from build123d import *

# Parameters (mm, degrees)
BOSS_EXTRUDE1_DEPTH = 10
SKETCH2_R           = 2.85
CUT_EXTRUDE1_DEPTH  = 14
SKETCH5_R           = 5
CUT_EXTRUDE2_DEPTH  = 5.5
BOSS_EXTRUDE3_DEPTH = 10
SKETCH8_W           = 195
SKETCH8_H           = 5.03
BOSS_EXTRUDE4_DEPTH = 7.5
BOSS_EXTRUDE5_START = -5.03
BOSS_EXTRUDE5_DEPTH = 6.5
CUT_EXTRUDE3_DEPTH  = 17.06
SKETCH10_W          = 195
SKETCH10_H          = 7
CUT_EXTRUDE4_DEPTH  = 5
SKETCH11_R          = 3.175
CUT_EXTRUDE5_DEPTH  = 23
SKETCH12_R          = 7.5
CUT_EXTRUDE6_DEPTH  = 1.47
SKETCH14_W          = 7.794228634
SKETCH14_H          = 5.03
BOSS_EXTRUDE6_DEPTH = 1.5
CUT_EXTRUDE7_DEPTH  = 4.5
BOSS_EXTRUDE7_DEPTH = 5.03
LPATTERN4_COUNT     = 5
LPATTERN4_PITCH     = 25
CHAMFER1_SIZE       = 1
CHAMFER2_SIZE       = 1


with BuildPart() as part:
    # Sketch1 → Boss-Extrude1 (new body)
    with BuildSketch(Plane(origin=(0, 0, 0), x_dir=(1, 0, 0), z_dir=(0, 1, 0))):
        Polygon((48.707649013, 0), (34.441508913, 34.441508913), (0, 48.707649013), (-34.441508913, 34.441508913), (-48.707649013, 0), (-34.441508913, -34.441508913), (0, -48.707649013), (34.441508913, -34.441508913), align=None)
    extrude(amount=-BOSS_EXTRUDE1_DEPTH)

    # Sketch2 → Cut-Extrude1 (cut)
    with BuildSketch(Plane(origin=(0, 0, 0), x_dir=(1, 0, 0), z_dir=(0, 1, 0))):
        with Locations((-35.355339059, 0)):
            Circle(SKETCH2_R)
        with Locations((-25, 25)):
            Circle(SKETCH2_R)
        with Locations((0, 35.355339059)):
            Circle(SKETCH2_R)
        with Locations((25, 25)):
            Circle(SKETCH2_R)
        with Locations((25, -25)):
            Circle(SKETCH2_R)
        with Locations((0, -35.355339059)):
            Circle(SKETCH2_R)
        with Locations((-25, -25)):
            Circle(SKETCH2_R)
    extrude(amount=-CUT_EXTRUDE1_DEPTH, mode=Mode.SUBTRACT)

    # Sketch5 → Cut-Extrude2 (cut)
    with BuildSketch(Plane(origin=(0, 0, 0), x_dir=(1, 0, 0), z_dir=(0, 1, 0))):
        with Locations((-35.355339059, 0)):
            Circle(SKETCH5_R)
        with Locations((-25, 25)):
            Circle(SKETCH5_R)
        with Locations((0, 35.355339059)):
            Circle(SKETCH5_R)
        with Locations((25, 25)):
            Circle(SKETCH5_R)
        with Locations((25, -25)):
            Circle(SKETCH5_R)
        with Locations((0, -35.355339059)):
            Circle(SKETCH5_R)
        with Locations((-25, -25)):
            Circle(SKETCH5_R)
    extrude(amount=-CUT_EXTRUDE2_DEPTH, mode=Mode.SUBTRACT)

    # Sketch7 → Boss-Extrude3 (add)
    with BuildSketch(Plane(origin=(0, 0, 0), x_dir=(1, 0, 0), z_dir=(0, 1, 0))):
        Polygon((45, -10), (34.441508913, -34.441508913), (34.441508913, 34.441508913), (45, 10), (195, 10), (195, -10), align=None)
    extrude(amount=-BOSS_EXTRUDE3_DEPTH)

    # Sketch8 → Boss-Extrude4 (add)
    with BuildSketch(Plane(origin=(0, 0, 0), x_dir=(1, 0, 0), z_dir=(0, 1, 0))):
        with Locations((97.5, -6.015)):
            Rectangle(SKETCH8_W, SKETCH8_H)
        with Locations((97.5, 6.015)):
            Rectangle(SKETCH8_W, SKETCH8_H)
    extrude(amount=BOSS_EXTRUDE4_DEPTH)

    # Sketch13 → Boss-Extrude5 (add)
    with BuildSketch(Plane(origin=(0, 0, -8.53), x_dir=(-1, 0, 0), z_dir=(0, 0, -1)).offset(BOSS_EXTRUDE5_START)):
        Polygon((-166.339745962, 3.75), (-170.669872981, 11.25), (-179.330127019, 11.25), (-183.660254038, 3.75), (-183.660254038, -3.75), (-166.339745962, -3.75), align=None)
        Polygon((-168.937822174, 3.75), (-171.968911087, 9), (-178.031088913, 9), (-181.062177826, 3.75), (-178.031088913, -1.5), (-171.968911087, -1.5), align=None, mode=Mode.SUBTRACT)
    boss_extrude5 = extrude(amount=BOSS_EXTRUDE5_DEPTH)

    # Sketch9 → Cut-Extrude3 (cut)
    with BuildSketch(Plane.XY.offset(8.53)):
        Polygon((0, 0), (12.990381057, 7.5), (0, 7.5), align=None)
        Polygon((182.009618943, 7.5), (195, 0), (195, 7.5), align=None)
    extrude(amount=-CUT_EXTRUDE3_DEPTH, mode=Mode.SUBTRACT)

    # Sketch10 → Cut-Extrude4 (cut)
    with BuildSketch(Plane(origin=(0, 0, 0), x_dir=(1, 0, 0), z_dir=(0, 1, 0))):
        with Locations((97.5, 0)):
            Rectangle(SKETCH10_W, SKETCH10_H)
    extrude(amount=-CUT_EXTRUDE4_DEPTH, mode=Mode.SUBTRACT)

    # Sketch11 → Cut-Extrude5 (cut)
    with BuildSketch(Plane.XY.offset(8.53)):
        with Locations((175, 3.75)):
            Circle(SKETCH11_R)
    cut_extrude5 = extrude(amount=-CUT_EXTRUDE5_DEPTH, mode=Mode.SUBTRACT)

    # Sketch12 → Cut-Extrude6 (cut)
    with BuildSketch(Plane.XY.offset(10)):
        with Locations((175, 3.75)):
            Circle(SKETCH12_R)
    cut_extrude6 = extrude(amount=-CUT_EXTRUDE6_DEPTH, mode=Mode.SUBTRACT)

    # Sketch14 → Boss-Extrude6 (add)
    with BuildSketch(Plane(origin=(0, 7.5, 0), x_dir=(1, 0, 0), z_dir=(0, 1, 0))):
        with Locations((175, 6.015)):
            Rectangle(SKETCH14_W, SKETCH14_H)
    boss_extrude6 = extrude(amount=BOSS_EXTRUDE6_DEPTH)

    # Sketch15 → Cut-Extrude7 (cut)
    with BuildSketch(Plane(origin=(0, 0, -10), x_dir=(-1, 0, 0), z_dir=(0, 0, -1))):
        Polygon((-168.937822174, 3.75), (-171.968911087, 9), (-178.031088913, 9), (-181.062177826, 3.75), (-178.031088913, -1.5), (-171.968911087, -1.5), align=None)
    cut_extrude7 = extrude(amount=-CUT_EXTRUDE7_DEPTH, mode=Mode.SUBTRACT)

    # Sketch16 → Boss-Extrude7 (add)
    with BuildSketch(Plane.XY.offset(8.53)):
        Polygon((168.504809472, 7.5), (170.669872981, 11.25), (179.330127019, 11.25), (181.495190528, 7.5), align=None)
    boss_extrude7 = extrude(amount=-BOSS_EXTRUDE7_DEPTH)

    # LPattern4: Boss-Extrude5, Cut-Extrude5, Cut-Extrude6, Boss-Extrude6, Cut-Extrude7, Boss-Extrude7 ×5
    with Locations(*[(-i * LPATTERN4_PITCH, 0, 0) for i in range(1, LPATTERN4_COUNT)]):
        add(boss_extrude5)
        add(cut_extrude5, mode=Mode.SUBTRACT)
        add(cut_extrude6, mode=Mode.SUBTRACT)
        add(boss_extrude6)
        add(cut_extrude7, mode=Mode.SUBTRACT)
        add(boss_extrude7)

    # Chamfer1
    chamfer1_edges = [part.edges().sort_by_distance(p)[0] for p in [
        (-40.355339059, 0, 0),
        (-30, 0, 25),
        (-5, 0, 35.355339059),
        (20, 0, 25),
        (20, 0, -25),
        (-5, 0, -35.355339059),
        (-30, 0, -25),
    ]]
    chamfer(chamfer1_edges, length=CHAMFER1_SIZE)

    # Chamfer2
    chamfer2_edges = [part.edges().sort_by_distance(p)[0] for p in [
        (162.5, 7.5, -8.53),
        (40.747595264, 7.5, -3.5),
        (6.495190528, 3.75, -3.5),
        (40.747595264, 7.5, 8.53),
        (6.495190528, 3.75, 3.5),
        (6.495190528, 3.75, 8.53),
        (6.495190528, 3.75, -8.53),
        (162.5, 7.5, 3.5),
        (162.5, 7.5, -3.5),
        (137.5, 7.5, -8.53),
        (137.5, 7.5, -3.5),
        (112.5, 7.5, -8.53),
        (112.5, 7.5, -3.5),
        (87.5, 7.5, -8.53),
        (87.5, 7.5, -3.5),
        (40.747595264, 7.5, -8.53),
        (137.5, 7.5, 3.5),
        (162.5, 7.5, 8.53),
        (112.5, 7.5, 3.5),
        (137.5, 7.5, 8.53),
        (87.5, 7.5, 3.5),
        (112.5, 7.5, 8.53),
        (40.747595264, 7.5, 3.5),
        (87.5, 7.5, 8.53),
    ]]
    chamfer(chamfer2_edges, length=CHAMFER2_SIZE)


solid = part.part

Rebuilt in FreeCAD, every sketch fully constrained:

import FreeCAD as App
import Part
import Sketcher
from FreeCAD import Vector
Q = App.Units.Quantity


def edges_at(feature, points):
    """Names of the edges that pass closest to the given points."""
    edges = feature.Shape.Edges
    near = lambda p: min(range(len(edges)), key=lambda i: edges[i].distToShape(Part.Vertex(*p))[0])
    return sorted({f"Edge{near(p) + 1}" for p in points})


def add_polygon(sketch, points):
    """Adds a closed chain of lines whose ends are joined by coincident constraints."""
    first, n = sketch.GeometryCount, len(points)
    for a, b in zip(points, points[1:] + points[:1]):
        sketch.addGeometry(Part.LineSegment(App.Vector(*a, 0), App.Vector(*b, 0)), False)
    for i in range(n):
        sketch.addConstraint(Sketcher.Constraint("Coincident", first + i, 2, first + (i + 1) % n, 1))

doc = App.newDocument("Part")
body = doc.addObject("PartDesign::Body", "Body")

# Sketch on XZ plane
sketch1 = body.newObject("Sketcher::SketchObject", "Sketch")
sketch1.AttachmentSupport = (doc.getObject("XZ_Plane"), [""])
sketch1.MapMode = "FlatFace"
add_polygon(sketch1, [(49, 0), (34, -34), (0, -49), (-34, -34), (-49, 0), (-34, 34), (0, 49), (34, 34)])  # lines 0-7
sketch1.addConstraint([
    Sketcher.Constraint("Symmetric", 0, 2, 4, 2, -1, 1),
    Sketcher.Constraint("Symmetric", 1, 2, 5, 2, -1, 1),
    Sketcher.Constraint("Symmetric", 2, 2, 6, 2, -1, 1),
    Sketcher.Constraint("Symmetric", 3, 2, 7, 2, -1, 1),
    Sketcher.Constraint("Symmetric", 0, 2, 2, 2, -2),
    Sketcher.Constraint("PointOnObject", 1, 2, -2),
    Sketcher.Constraint("PointOnObject", 3, 2, -1),
    Sketcher.Constraint("Perpendicular", 0, 2),
    Sketcher.Constraint("Equal", 0, 1),
    Sketcher.Constraint("Angle", 0, Q("-112.5 deg")),
    Sketcher.Constraint("DistanceY", 1, 2, 5, 2, 97.415298),
])
pad1 = body.newObject("PartDesign::Pad", "Pad")
pad1.Profile = sketch1
pad1.Length = 10

# Sketch on XZ plane
sketch2 = body.newObject("Sketcher::SketchObject", "Sketch001")
sketch2.AttachmentSupport = (doc.getObject("XZ_Plane"), [""])
sketch2.MapMode = "FlatFace"
sketch2.addGeometry([
    Part.Circle(Vector(-35.4, 0, 0), Vector(0, 0, 1), 2.9),  # 0
    Part.Circle(Vector(-25, -25, 0), Vector(0, 0, 1), 2.9),  # 1
    Part.Circle(Vector(0, -35.4, 0), Vector(0, 0, 1), 2.9),  # 2
    Part.Circle(Vector(25, -25, 0), Vector(0, 0, 1), 2.9),  # 3
    Part.Circle(Vector(25, 25, 0), Vector(0, 0, 1), 2.9),  # 4
    Part.Circle(Vector(0, 35.4, 0), Vector(0, 0, 1), 2.9),  # 5
    Part.Circle(Vector(-25, 25, 0), Vector(0, 0, 1), 2.9),  # 6
], False)
sketch2.addConstraint([
    Sketcher.Constraint("Equal", 0, 1),
    Sketcher.Constraint("Equal", 1, 2),
    Sketcher.Constraint("Equal", 2, 3),
    Sketcher.Constraint("Equal", 3, 4),
    Sketcher.Constraint("Equal", 4, 5),
    Sketcher.Constraint("Equal", 5, 6),
    Sketcher.Constraint("Symmetric", 1, 3, 4, 3, -1, 1),
    Sketcher.Constraint("Symmetric", 2, 3, 5, 3, -1, 1),
    Sketcher.Constraint("Symmetric", 3, 3, 6, 3, -1, 1),
    Sketcher.Constraint("Symmetric", 1, 3, 3, 3, -2),
    Sketcher.Constraint("PointOnObject", 0, 3, -1),
    Sketcher.Constraint("PointOnObject", 2, 3, -2),
    Sketcher.Constraint("Diameter", 0, 5.7),
    Sketcher.Constraint("DistanceX", 1, 3, -1, 1, 25.0),
    Sketcher.Constraint("DistanceY", 1, 3, -1, 1, 25.0),
    Sketcher.Constraint("DistanceX", 0, 3, -1, 1, 35.355339),
    Sketcher.Constraint("DistanceY", 2, 3, -1, 1, 35.355339),
])
pocket1 = body.newObject("PartDesign::Pocket", "Pocket")
pocket1.Profile = sketch2
pocket1.Length = 14
pocket1.Reversed = True

# Sketch on XZ plane
sketch3 = body.newObject("Sketcher::SketchObject", "Sketch002")
sketch3.AttachmentSupport = (doc.getObject("XZ_Plane"), [""])
sketch3.MapMode = "FlatFace"
sketch3.addGeometry([
    Part.Circle(Vector(-35, 0, 0), Vector(0, 0, 1), 5),  # 0
    Part.Circle(Vector(-25, -25, 0), Vector(0, 0, 1), 5),  # 1
    Part.Circle(Vector(0, -35, 0), Vector(0, 0, 1), 5),  # 2
    Part.Circle(Vector(25, -25, 0), Vector(0, 0, 1), 5),  # 3
    Part.Circle(Vector(25, 25, 0), Vector(0, 0, 1), 5),  # 4
    Part.Circle(Vector(0, 35, 0), Vector(0, 0, 1), 5),  # 5
    Part.Circle(Vector(-25, 25, 0), Vector(0, 0, 1), 5),  # 6
], False)
sketch3.addConstraint([
    Sketcher.Constraint("Equal", 0, 1),
    Sketcher.Constraint("Equal", 1, 2),
    Sketcher.Constraint("Equal", 2, 3),
    Sketcher.Constraint("Equal", 3, 4),
    Sketcher.Constraint("Equal", 4, 5),
    Sketcher.Constraint("Equal", 5, 6),
    Sketcher.Constraint("Symmetric", 1, 3, 4, 3, -1, 1),
    Sketcher.Constraint("Symmetric", 2, 3, 5, 3, -1, 1),
    Sketcher.Constraint("Symmetric", 3, 3, 6, 3, -1, 1),
    Sketcher.Constraint("Symmetric", 1, 3, 3, 3, -2),
    Sketcher.Constraint("PointOnObject", 0, 3, -1),
    Sketcher.Constraint("PointOnObject", 2, 3, -2),
    Sketcher.Constraint("Diameter", 0, 10.0),
    Sketcher.Constraint("DistanceX", 1, 3, -1, 1, 25.0),
    Sketcher.Constraint("DistanceY", 1, 3, -1, 1, 25.0),
    Sketcher.Constraint("DistanceX", 0, 3, -1, 1, 35.355339),
    Sketcher.Constraint("DistanceY", 2, 3, -1, 1, 35.355339),
])
pocket2 = body.newObject("PartDesign::Pocket", "Pocket001")
pocket2.Profile = sketch3
pocket2.Length = 5.5
pocket2.Reversed = True

# Sketch on XZ plane
sketch4 = body.newObject("Sketcher::SketchObject", "Sketch003")
sketch4.AttachmentSupport = (doc.getObject("XZ_Plane"), [""])
sketch4.MapMode = "FlatFace"
add_polygon(sketch4, [(34, 34), (45, 10), (195, 10), (195, -10), (45, -10), (34, -34)])  # lines 0-5
sketch4.addConstraint([
    Sketcher.Constraint("Horizontal", 1),
    Sketcher.Constraint("Vertical", 2),
    Sketcher.Constraint("Horizontal", 3),
    Sketcher.Constraint("Vertical", 5),
    Sketcher.Constraint("Symmetric", 0, 2, 3, 2, -1),
    Sketcher.Constraint("Equal", 0, 4),
    Sketcher.Constraint("DistanceX", 1, 1, 1, 2, 150.0),
    Sketcher.Constraint("DistanceY", 2, 2, 2, 1, 20.0),
    Sketcher.Constraint("DistanceX", -1, 1, 0, 2, 45.0),
    Sketcher.Constraint("DistanceY", 5, 1, 5, 2, 68.883018),
    Sketcher.Constraint("DistanceX", -1, 1, 4, 2, 34.441509),
])
pad2 = body.newObject("PartDesign::Pad", "Pad001")
pad2.Profile = sketch4
pad2.Length = 10

# Sketch on XZ plane
sketch5 = body.newObject("Sketcher::SketchObject", "Sketch004")
sketch5.AttachmentSupport = (doc.getObject("XZ_Plane"), [""])
sketch5.MapMode = "FlatFace"
add_polygon(sketch5, [(0, 4), (0, 9), (195, 9), (195, 4)])  # lines 0-3
add_polygon(sketch5, [(0, -9), (0, -4), (195, -4), (195, -9)])  # lines 4-7
sketch5.addConstraint([
    Sketcher.Constraint("Vertical", 0),
    Sketcher.Constraint("Horizontal", 1),
    Sketcher.Constraint("Vertical", 2),
    Sketcher.Constraint("Horizontal", 3),
    Sketcher.Constraint("Vertical", 4),
    Sketcher.Constraint("Horizontal", 5),
    Sketcher.Constraint("Vertical", 6),
    Sketcher.Constraint("Horizontal", 7),
    Sketcher.Constraint("Symmetric", 3, 2, 4, 2, -1, 1),
    Sketcher.Constraint("Symmetric", 1, 2, 6, 2, -1),
    Sketcher.Constraint("PointOnObject", 0, 2, -2),
    Sketcher.Constraint("DistanceX", 1, 1, 1, 2, 195.0),
    Sketcher.Constraint("DistanceY", 4, 2, 3, 2, 7.0),
    Sketcher.Constraint("DistanceY", 0, 1, 0, 2, 5.03),
])
pad3 = body.newObject("PartDesign::Pad", "Pad002")
pad3.Profile = sketch5
pad3.Length = 7.5
pad3.Reversed = True

# Sketch on XY plane
sketch6 = body.newObject("Sketcher::SketchObject", "Sketch005")
sketch6.AttachmentSupport = (doc.getObject("XY_Plane"), [""])
sketch6.MapMode = "FlatFace"
sketch6.AttachmentOffset = App.Placement(Vector(0, 0, -3.5), App.Rotation())
add_polygon(sketch6, [(166, 4), (171, 11), (179, 11), (184, 4), (184, -4), (166, -4)])  # lines 0-5
add_polygon(sketch6, [(172, 9), (169, 4), (172, -2), (178, -2), (181, 4), (178, 9)])  # lines 6-11
sketch6.addConstraint([
    Sketcher.Constraint("Horizontal", 1),
    Sketcher.Constraint("Vertical", 3),
    Sketcher.Constraint("Horizontal", 4),
    Sketcher.Constraint("Vertical", 5),
    Sketcher.Constraint("Horizontal", 8),
    Sketcher.Constraint("Horizontal", 11),
    Sketcher.Constraint("Parallel", 0, 6),
    Sketcher.Constraint("Parallel", 2, 7),
    Sketcher.Constraint("Parallel", 6, 9),
    Sketcher.Constraint("Parallel", 7, 10),
    Sketcher.Constraint("Horizontal", 2, 2, 5, 2),
    Sketcher.Constraint("Horizontal", 5, 2, 6, 2),
    Sketcher.Constraint("Horizontal", 6, 2, 9, 2),
    Sketcher.Constraint("Vertical", 8, 2, 10, 2),
    Sketcher.Constraint("Vertical", 7, 2, 11, 2),
    Sketcher.Constraint("Angle", 0, Q("60 deg")),
    Sketcher.Constraint("DistanceY", 3, 2, 3, 1, 7.5),
    Sketcher.Constraint("DistanceY", -1, 1, 10, 2, 9.0),
    Sketcher.Constraint("DistanceY", 3, 2, 1, 2, 15.0),
    Sketcher.Constraint("DistanceY", 7, 2, -1, 1, 1.5),
    Sketcher.Constraint("DistanceX", 4, 2, 4, 1, 17.320508),
    Sketcher.Constraint("DistanceX", 8, 1, 8, 2, 6.062178),
    Sketcher.Constraint("DistanceX", -1, 1, 7, 2, 171.968911),
    Sketcher.Constraint("DistanceX", 6, 2, 0, 2, 1.732051),
])
pad4 = body.newObject("PartDesign::Pad", "Pad003")
pad4.Profile = sketch6
pad4.Length = 6.5
pad4.Reversed = True

# Sketch on XY plane
sketch7 = body.newObject("Sketcher::SketchObject", "Sketch006")
sketch7.AttachmentSupport = (doc.getObject("XY_Plane"), [""])
sketch7.MapMode = "FlatFace"
sketch7.AttachmentOffset = App.Placement(Vector(0, 0, 8.53), App.Rotation())
add_polygon(sketch7, [(0, 0), (13, 8), (0, 8)])  # lines 0-2
add_polygon(sketch7, [(182, 8), (195, 0), (195, 8)])  # lines 3-5
sketch7.addConstraint([
    Sketcher.Constraint("Horizontal", 1),
    Sketcher.Constraint("Vertical", 2),
    Sketcher.Constraint("Vertical", 4),
    Sketcher.Constraint("Horizontal", 5),
    Sketcher.Constraint("Coincident", 2, 2, -1, 1),
    Sketcher.Constraint("PointOnObject", 3, 2, -1),
    Sketcher.Constraint("Horizontal", 1, 2, 4, 2),
    Sketcher.Constraint("Equal", 1, 5),
    Sketcher.Constraint("Angle", 0, Q("30 deg")),
    Sketcher.Constraint("Distance", 0, 15.0),
    Sketcher.Constraint("DistanceX", -1, 1, 3, 2, 195.0),
])
pocket3 = body.newObject("PartDesign::Pocket", "Pocket002")
pocket3.Profile = sketch7
pocket3.Length = 17.06

# Sketch on XZ plane
sketch8 = body.newObject("Sketcher::SketchObject", "Sketch007")
sketch8.AttachmentSupport = (doc.getObject("XZ_Plane"), [""])
sketch8.MapMode = "FlatFace"
add_polygon(sketch8, [(0, -4), (0, 4), (195, 4), (195, -4)])  # lines 0-3
sketch8.addConstraint([
    Sketcher.Constraint("Vertical", 0),
    Sketcher.Constraint("Horizontal", 1),
    Sketcher.Constraint("Vertical", 2),
    Sketcher.Constraint("Horizontal", 3),
    Sketcher.Constraint("Symmetric", 0, 2, 3, 2, -1, 1),
    Sketcher.Constraint("DistanceX", 1, 1, 1, 2, 195.0),
    Sketcher.Constraint("DistanceY", 0, 1, 0, 2, 7.0),
])
pocket4 = body.newObject("PartDesign::Pocket", "Pocket003")
pocket4.Profile = sketch8
pocket4.Length = 5
pocket4.Reversed = True

# Sketch on XY plane
sketch9 = body.newObject("Sketcher::SketchObject", "Sketch008")
sketch9.AttachmentSupport = (doc.getObject("XY_Plane"), [""])
sketch9.MapMode = "FlatFace"
sketch9.AttachmentOffset = App.Placement(Vector(0, 0, 8.53), App.Rotation())
sketch9.addGeometry(Part.Circle(Vector(175, 3.8, 0), Vector(0, 0, 1), 3.2), False)
sketch9.addConstraint([
    Sketcher.Constraint("Diameter", 0, 6.35),
    Sketcher.Constraint("DistanceX", -1, 1, 0, 3, 175.0),
    Sketcher.Constraint("DistanceY", -1, 1, 0, 3, 3.75),
])
pocket5 = body.newObject("PartDesign::Pocket", "Pocket004")
pocket5.Profile = sketch9
pocket5.Length = 23

# Sketch on XY plane
sketch10 = body.newObject("Sketcher::SketchObject", "Sketch009")
sketch10.AttachmentSupport = (doc.getObject("XY_Plane"), [""])
sketch10.MapMode = "FlatFace"
sketch10.AttachmentOffset = App.Placement(Vector(0, 0, 10), App.Rotation())
sketch10.addGeometry(Part.Circle(Vector(175, 4, 0), Vector(0, 0, 1), 8), False)
sketch10.addConstraint([
    Sketcher.Constraint("Diameter", 0, 15.0),
    Sketcher.Constraint("DistanceX", -1, 1, 0, 3, 175.0),
    Sketcher.Constraint("DistanceY", -1, 1, 0, 3, 3.75),
])
pocket6 = body.newObject("PartDesign::Pocket", "Pocket005")
pocket6.Profile = sketch10
pocket6.Length = 1.47

# Sketch on XZ plane
sketch11 = body.newObject("Sketcher::SketchObject", "Sketch010")
sketch11.AttachmentSupport = (doc.getObject("XZ_Plane"), [""])
sketch11.MapMode = "FlatFace"
sketch11.AttachmentOffset = App.Placement(Vector(0, 0, -7.5), App.Rotation())
add_polygon(sketch11, [(171, -9), (171, -4), (179, -4), (179, -9)])  # lines 0-3
sketch11.addConstraint([
    Sketcher.Constraint("Vertical", 0),
    Sketcher.Constraint("Horizontal", 1),
    Sketcher.Constraint("Vertical", 2),
    Sketcher.Constraint("Horizontal", 3),
    Sketcher.Constraint("DistanceY", 0, 1, 0, 2, 5.03),
    Sketcher.Constraint("DistanceY", 0, 2, -1, 1, 3.5),
    Sketcher.Constraint("DistanceX", 1, 1, 1, 2, 7.794229),
    Sketcher.Constraint("DistanceX", -1, 1, 0, 2, 171.102886),
])
pad5 = body.newObject("PartDesign::Pad", "Pad004")
pad5.Profile = sketch11
pad5.Length = 1.5
pad5.Reversed = True

# Sketch on XY plane
sketch12 = body.newObject("Sketcher::SketchObject", "Sketch011")
sketch12.AttachmentSupport = (doc.getObject("XY_Plane"), [""])
sketch12.MapMode = "FlatFace"
sketch12.AttachmentOffset = App.Placement(Vector(0, 0, -10), App.Rotation())
add_polygon(sketch12, [(169, 4), (172, 9), (178, 9), (181, 4), (178, -2), (172, -2)])  # lines 0-5
sketch12.addConstraint([
    Sketcher.Constraint("Horizontal", 1),
    Sketcher.Constraint("Horizontal", 4),
    Sketcher.Constraint("Parallel", 0, 3),
    Sketcher.Constraint("Parallel", 2, 5),
    Sketcher.Constraint("Horizontal", 2, 2, 5, 2),
    Sketcher.Constraint("Vertical", 1, 2, 3, 2),
    Sketcher.Constraint("Vertical", 0, 2, 4, 2),
    Sketcher.Constraint("Angle", 0, Q("60 deg")),
    Sketcher.Constraint("DistanceY", -1, 1, 0, 2, 9.0),
    Sketcher.Constraint("DistanceY", 3, 2, -1, 1, 1.5),
    Sketcher.Constraint("DistanceX", 1, 1, 1, 2, 6.062178),
    Sketcher.Constraint("DistanceX", -1, 1, 0, 2, 171.968911),
])
pocket7 = body.newObject("PartDesign::Pocket", "Pocket006")
pocket7.Profile = sketch12
pocket7.Length = 4.5
pocket7.Reversed = True

# Sketch on XY plane
sketch13 = body.newObject("Sketcher::SketchObject", "Sketch012")
sketch13.AttachmentSupport = (doc.getObject("XY_Plane"), [""])
sketch13.MapMode = "FlatFace"
sketch13.AttachmentOffset = App.Placement(Vector(0, 0, 8.53), App.Rotation())
add_polygon(sketch13, [(170.7, 11.2), (168.5, 7.5), (181.5, 7.5), (179.3, 11.2)])  # lines 0-3
sketch13.addConstraint([
    Sketcher.Constraint("Horizontal", 1),
    Sketcher.Constraint("Horizontal", 3),
    Sketcher.Constraint("Equal", 0, 2),
    Sketcher.Constraint("Angle", 0, Q("-120 deg")),
    Sketcher.Constraint("DistanceY", -1, 1, 0, 2, 7.5),
    Sketcher.Constraint("DistanceY", -1, 1, 2, 2, 11.25),
    Sketcher.Constraint("DistanceX", 1, 1, 1, 2, 12.990381),
    Sketcher.Constraint("DistanceX", -1, 1, 0, 2, 168.504809),
])
pad6 = body.newObject("PartDesign::Pad", "Pad005")
pad6.Profile = sketch13
pad6.Length = 5.03
pad6.Reversed = True
doc.recompute()

linearpattern = body.newObject("PartDesign::LinearPattern", "LinearPattern")
linearpattern.Originals = [pad4, pocket5, pocket6, pad5, pocket7, pad6]
linearpattern.Direction = (doc.getObject("X_Axis"), [""])
linearpattern.Mode = "offset"
linearpattern.Offset = 25
linearpattern.Occurrences = 5
linearpattern.Reversed = True
body.Tip = linearpattern
doc.recompute()

chamfer = body.newObject("PartDesign::Chamfer", "Chamfer")
chamfer.Base = (linearpattern, edges_at(linearpattern, [
    (-40.355, 0, 0),
    (-30, 0, 25),
    (-5, 0, 35.355),
    (20, 0, 25),
    (20, 0, -25),
    (-5, 0, -35.355),
    (-30, 0, -25),
]))
chamfer.Size = 1
doc.recompute()

chamfer2 = body.newObject("PartDesign::Chamfer", "Chamfer001")
chamfer2.Base = (chamfer, edges_at(chamfer, [
    (162.5, 7.5, -8.53),
    (40.748, 7.5, -3.5),
    (6.495, 3.75, -3.5),
    (40.748, 7.5, 8.53),
    (6.495, 3.75, 3.5),
    (6.495, 3.75, 8.53),
    (6.495, 3.75, -8.53),
    (162.5, 7.5, 3.5),
    (162.5, 7.5, -3.5),
    (137.5, 7.5, -8.53),
    (137.5, 7.5, -3.5),
    (112.5, 7.5, -8.53),
    (112.5, 7.5, -3.5),
    (87.5, 7.5, -8.53),
    (87.5, 7.5, -3.5),
    (40.748, 7.5, -8.53),
    (137.5, 7.5, 3.5),
    (162.5, 7.5, 8.53),
    (112.5, 7.5, 3.5),
    (137.5, 7.5, 8.53),
    (87.5, 7.5, 3.5),
    (112.5, 7.5, 8.53),
    (40.748, 7.5, 3.5),
    (87.5, 7.5, 8.53),
]))
chamfer2.Size = 1

doc.recompute()
